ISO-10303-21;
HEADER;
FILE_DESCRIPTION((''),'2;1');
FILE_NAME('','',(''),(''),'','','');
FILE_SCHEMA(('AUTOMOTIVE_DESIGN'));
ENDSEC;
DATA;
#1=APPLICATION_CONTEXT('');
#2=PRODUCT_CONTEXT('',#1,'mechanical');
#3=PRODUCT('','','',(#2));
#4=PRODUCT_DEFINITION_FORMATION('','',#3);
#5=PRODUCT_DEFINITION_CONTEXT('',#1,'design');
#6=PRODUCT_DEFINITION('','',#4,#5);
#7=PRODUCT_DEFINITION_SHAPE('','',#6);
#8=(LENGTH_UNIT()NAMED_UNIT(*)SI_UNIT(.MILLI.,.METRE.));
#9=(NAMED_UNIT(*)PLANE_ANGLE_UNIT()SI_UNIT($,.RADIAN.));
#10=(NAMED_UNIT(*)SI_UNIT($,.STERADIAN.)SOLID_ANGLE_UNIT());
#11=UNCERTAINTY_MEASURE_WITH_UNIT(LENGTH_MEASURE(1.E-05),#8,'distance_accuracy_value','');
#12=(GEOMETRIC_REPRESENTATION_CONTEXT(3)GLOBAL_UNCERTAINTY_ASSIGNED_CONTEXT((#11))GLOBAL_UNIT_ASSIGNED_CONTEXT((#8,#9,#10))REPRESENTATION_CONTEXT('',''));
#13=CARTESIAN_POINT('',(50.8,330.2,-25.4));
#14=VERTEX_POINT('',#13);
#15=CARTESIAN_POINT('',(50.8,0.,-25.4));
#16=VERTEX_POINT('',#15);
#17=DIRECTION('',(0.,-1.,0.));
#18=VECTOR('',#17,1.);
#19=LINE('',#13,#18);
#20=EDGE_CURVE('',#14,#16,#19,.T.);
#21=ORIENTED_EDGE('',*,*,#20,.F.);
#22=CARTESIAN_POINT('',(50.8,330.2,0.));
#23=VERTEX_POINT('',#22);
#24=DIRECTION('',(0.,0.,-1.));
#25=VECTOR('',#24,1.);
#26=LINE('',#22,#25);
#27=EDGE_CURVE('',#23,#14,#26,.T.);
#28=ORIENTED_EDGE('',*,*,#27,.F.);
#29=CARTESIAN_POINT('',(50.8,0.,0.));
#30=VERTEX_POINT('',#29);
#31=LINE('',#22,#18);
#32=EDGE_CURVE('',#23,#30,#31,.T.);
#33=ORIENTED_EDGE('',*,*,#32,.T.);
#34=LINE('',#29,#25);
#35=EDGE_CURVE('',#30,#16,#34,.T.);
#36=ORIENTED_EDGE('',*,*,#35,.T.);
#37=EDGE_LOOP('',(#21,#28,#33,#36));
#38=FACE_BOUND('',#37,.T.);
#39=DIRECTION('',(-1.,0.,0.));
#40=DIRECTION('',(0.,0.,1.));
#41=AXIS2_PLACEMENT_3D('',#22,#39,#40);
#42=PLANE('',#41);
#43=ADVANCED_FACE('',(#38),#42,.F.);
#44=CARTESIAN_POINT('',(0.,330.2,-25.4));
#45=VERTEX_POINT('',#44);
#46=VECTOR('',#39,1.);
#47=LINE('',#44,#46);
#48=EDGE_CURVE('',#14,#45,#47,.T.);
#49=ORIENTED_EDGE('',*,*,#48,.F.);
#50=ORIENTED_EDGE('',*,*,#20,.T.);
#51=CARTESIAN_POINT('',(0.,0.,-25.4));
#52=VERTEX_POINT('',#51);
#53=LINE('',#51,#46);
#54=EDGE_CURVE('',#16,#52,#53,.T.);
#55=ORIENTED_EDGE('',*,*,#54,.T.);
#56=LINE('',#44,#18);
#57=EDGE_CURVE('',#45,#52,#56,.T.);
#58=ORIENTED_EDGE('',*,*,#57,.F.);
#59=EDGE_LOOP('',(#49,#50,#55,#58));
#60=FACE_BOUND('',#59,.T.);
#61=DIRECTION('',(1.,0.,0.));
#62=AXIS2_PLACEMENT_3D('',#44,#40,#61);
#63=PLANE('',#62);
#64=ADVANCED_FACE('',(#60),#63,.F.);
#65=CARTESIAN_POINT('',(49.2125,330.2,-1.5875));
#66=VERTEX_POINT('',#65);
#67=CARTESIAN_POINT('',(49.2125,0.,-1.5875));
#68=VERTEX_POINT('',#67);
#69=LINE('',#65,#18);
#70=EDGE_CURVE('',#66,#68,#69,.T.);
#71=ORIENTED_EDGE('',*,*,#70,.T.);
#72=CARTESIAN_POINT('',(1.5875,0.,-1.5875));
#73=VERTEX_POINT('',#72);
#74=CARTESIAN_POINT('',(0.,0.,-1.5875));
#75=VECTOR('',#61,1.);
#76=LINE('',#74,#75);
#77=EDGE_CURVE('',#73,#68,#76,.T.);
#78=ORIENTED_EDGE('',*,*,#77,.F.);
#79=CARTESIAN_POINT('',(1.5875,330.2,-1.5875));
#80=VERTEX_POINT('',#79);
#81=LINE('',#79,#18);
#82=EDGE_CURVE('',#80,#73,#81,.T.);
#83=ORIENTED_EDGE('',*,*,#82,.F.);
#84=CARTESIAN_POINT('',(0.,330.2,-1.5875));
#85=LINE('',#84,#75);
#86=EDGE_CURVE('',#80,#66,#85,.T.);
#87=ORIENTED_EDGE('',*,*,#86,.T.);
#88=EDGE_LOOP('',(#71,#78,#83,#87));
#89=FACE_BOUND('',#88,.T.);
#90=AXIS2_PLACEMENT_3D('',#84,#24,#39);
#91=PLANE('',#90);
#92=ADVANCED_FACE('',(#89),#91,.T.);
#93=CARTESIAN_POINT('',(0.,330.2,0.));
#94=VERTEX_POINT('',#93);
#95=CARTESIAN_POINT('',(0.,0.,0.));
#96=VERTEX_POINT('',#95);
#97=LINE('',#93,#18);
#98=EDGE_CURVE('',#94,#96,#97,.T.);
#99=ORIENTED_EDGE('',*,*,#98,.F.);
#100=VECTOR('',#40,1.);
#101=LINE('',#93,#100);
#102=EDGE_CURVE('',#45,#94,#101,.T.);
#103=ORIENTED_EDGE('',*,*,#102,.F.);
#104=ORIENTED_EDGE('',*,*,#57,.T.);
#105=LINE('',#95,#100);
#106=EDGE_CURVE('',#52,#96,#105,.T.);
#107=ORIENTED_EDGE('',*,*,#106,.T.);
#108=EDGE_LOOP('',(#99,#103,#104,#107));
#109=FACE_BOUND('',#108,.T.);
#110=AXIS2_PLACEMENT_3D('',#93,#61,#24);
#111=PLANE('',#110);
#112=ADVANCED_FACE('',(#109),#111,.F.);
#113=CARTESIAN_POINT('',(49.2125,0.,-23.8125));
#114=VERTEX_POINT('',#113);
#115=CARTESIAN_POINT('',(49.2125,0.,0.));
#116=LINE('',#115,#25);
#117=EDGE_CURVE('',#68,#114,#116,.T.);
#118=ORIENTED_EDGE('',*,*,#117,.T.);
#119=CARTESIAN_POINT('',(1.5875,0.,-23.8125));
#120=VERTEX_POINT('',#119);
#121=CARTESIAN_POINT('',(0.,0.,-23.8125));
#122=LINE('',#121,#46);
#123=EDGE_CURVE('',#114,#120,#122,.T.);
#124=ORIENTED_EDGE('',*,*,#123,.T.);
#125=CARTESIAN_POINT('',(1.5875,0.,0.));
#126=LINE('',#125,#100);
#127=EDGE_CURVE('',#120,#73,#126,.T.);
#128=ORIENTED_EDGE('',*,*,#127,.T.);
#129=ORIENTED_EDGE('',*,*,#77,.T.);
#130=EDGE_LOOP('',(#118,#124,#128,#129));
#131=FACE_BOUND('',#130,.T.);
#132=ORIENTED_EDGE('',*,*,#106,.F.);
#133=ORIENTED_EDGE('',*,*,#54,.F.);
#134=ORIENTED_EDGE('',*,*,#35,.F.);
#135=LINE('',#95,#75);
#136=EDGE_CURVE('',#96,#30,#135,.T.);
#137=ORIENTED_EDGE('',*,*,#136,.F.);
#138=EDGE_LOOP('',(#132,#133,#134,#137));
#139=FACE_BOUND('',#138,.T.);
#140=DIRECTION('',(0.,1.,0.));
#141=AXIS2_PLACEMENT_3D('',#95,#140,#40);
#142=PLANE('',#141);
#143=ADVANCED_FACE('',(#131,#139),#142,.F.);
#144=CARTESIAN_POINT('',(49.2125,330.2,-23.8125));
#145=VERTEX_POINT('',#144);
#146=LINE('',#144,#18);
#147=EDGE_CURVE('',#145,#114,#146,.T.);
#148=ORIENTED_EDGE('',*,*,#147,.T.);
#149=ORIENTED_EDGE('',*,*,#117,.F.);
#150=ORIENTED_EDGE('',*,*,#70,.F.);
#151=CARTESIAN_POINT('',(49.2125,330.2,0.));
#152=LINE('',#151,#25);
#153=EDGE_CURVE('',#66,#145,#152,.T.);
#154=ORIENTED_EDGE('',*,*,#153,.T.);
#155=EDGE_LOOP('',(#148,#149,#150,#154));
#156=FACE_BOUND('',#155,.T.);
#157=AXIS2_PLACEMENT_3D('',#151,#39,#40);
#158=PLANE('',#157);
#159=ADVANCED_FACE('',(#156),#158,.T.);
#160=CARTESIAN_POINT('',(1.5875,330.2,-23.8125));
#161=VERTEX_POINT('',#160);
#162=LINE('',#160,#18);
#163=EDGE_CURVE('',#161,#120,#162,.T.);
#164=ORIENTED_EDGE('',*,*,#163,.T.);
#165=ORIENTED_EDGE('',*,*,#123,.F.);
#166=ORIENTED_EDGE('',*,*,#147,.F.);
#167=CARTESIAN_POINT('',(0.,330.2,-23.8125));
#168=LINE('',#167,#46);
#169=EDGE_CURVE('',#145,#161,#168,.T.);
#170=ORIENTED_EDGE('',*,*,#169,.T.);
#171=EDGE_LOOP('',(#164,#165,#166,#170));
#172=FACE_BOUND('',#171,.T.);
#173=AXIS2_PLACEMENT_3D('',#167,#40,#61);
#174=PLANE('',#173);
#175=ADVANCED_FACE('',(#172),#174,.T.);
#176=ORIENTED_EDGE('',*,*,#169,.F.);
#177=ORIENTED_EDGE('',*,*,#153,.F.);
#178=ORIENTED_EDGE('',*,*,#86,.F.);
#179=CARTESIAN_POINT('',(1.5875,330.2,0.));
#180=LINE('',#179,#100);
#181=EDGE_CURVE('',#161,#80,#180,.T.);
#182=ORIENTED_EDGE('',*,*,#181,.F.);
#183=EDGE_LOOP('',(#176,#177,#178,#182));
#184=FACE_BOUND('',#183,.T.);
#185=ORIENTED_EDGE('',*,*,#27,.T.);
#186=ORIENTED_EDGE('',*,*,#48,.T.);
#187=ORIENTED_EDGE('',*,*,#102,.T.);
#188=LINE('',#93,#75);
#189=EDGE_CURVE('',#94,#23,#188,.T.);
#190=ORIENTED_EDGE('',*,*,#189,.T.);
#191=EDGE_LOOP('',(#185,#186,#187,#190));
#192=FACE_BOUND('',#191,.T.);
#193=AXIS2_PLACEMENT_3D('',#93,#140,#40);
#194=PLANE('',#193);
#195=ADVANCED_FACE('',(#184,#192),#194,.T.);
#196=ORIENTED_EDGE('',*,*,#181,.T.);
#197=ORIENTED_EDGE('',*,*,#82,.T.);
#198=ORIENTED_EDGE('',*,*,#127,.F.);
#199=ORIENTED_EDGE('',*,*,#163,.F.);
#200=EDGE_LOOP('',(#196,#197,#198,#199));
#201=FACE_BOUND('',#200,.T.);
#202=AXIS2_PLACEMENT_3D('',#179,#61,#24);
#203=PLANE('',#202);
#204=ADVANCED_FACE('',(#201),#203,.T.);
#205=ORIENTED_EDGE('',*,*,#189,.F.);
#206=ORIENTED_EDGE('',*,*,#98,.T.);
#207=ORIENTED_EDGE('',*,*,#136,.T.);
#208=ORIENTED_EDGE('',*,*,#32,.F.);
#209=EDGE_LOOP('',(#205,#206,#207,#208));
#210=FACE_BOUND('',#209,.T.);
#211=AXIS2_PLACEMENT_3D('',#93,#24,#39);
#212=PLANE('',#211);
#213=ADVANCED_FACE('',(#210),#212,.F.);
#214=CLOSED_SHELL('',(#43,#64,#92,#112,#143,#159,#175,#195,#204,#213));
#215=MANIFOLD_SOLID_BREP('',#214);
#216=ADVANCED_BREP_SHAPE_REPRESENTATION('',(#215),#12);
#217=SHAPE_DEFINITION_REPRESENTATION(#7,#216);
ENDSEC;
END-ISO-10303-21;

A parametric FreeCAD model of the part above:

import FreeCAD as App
import Part
import Sketcher
Q = App.Units.Quantity

doc = App.newDocument("Part")
params = doc.addObject("Spreadsheet::Sheet", "Params")
for row, (alias, value) in enumerate([
    ("sketch1_width", "2 in"),
    ("sketch1_height", "1 in"),
    ("sketch1_width2", "1.875 in"),
    ("sketch1_height2", "0.875 in"),
    ("pad1_length", "13 in"),
], start=1):
    params.set(f"A{row}", alias)
    params.set(f"B{row}", "=" + value)
    params.setAlias(f"B{row}", alias)

body = doc.addObject("PartDesign::Body", "Body")

# Sketch on XZ plane
sketch1 = body.newObject("Sketcher::SketchObject", "Sketch")
sketch1.AttachmentSupport = (doc.getObject("XZ_Plane"), [""])
sketch1.MapMode = "FlatFace"
sketch1.addGeometry([
    Part.LineSegment(App.Vector(0, -25, 0), App.Vector(0, 0, 0)),  # 0
    Part.LineSegment(App.Vector(0, 0, 0), App.Vector(51, 0, 0)),  # 1
    Part.LineSegment(App.Vector(51, 0, 0), App.Vector(51, -25, 0)),  # 2
    Part.LineSegment(App.Vector(51, -25, 0), App.Vector(0, -25, 0)),  # 3
    Part.LineSegment(App.Vector(49, -2, 0), App.Vector(2, -2, 0)),  # 4
    Part.LineSegment(App.Vector(2, -2, 0), App.Vector(2, -24, 0)),  # 5
    Part.LineSegment(App.Vector(2, -24, 0), App.Vector(49, -24, 0)),  # 6
    Part.LineSegment(App.Vector(49, -24, 0), App.Vector(49, -2, 0)),  # 7
], False)
sketch1.addConstraint([
    Sketcher.Constraint("Coincident", 0, 2, 1, 1),
    Sketcher.Constraint("Coincident", 1, 2, 2, 1),
    Sketcher.Constraint("Coincident", 2, 2, 3, 1),
    Sketcher.Constraint("Coincident", 3, 2, 0, 1),
    Sketcher.Constraint("Coincident", 4, 2, 5, 1),
    Sketcher.Constraint("Coincident", 5, 2, 6, 1),
    Sketcher.Constraint("Coincident", 6, 2, 7, 1),
    Sketcher.Constraint("Coincident", 7, 2, 4, 1),
    Sketcher.Constraint("Vertical", 0),
    Sketcher.Constraint("Horizontal", 1),
    Sketcher.Constraint("Vertical", 2),
    Sketcher.Constraint("Horizontal", 3),
    Sketcher.Constraint("Horizontal", 4),
    Sketcher.Constraint("Vertical", 5),
    Sketcher.Constraint("Horizontal", 6),
    Sketcher.Constraint("Vertical", 7),
    Sketcher.Constraint("Coincident", 0, 2, -1, 1),
    Sketcher.Constraint("DistanceX", 1, 1, 1, 2, Q("2 in")),
    Sketcher.Constraint("DistanceY", 0, 1, 0, 2, Q("1 in")),
    Sketcher.Constraint("DistanceX", 4, 2, 4, 1, Q("1.875 in")),
    Sketcher.Constraint("DistanceY", 5, 2, 5, 1, Q("0.875 in")),
    Sketcher.Constraint("DistanceX", -1, 1, 4, 2, Q("0.0625 in")),
    Sketcher.Constraint("DistanceY", 4, 2, -1, 1, Q("0.0625 in")),
])
sketch1.setExpression("Constraints[17]", "Params.sketch1_width")
sketch1.setExpression("Constraints[18]", "Params.sketch1_height")
sketch1.setExpression("Constraints[19]", "Params.sketch1_width2")
sketch1.setExpression("Constraints[20]", "Params.sketch1_height2")
pad1 = body.newObject("PartDesign::Pad", "Pad")
pad1.Profile = sketch1
pad1.setExpression("Length", "Params.pad1_length")
pad1.Reversed = True

doc.recompute()
